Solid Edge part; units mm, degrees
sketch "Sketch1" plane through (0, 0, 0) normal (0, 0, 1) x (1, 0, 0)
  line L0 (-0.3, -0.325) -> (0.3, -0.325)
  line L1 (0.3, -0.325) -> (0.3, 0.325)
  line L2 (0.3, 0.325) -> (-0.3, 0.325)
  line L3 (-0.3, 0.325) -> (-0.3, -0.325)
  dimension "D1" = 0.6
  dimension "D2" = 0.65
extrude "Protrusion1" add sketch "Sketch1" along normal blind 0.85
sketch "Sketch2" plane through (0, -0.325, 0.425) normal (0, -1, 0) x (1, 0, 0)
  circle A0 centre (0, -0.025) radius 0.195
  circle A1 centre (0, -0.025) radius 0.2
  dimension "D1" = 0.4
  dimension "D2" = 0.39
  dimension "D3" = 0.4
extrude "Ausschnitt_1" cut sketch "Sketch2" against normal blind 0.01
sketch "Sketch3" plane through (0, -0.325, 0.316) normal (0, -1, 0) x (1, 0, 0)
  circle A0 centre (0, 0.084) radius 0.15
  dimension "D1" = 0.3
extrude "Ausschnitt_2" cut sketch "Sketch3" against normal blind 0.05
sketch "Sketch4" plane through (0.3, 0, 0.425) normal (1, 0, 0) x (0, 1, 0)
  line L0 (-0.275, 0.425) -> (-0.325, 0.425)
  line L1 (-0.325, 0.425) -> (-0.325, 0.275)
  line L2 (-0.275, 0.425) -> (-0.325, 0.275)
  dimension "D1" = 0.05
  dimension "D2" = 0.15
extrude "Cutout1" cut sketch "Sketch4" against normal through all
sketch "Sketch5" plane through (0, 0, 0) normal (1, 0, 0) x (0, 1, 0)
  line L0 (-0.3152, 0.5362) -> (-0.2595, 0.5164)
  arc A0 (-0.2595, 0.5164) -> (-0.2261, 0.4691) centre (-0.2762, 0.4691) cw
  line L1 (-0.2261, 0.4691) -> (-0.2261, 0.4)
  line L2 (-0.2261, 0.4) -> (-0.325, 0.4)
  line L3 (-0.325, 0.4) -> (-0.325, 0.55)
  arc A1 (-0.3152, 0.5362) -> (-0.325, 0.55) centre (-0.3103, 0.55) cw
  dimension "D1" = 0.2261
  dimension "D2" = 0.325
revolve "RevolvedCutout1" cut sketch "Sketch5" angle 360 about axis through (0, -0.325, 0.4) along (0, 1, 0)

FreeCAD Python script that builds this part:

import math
import FreeCAD as App
import Part
import Sketcher
from FreeCAD import Vector
Q = App.Units.Quantity

doc = App.newDocument("Part")
body = doc.addObject("PartDesign::Body", "Body")

# Sketch on XY plane
sketch1 = doc.addObject("Sketcher::SketchObject", "Sketch")
body.addObject(sketch1)
sketch1.AttachmentSupport = (doc.XY_Plane, [""])
sketch1.MapMode = "FlatFace"
sketch1.addGeometry([
    Part.LineSegment(Vector(-0.3, 0.3, 0), Vector(-0.3, -0.3, 0)),
    Part.LineSegment(Vector(-0.3, -0.3, 0), Vector(0.3, -0.3, 0)),
    Part.LineSegment(Vector(0.3, -0.3, 0), Vector(0.3, 0.3, 0)),
    Part.LineSegment(Vector(0.3, 0.3, 0), Vector(-0.3, 0.3, 0)),
], False)
sketch1.addConstraint([
    Sketcher.Constraint("Coincident", 0, 2, 1, 1),
    Sketcher.Constraint("Coincident", 1, 2, 2, 1),
    Sketcher.Constraint("Coincident", 2, 2, 3, 1),
    Sketcher.Constraint("Coincident", 3, 2, 0, 1),
    Sketcher.Constraint("Vertical", 0),
    Sketcher.Constraint("Horizontal", 1),
    Sketcher.Constraint("Vertical", 2),
    Sketcher.Constraint("Horizontal", 3),
    Sketcher.Constraint("Symmetric", 0, 2, 2, 2, -1, 1),
    Sketcher.Constraint("DistanceX", 0, 2, -1, 1, Q("0.3 mm")),
    Sketcher.Constraint("DistanceY", 0, 2, 0, 1, Q("0.65 mm")),
])
pad1 = doc.addObject("PartDesign::Pad", "Pad")
body.addObject(pad1)
pad1.Profile = sketch1
pad1.Length = 0.85

# Sketch on XZ plane
sketch2 = doc.addObject("Sketcher::SketchObject", "Sketch001")
body.addObject(sketch2)
sketch2.AttachmentSupport = (doc.XZ_Plane, [""])
sketch2.MapMode = "FlatFace"
sketch2.AttachmentOffset = App.Placement(Vector(0, 0, 0.325), App.Rotation())
sketch2.addGeometry([
    Part.Circle(Vector(0, 0.4, 0), Vector(0, 0, 1), 0.2),
    Part.Circle(Vector(0, 0.4, 0), Vector(0, 0, 1), 0.2),
], False)
sketch2.addConstraint([
    Sketcher.Constraint("Coincident", 1, 3, 0, 3),
    Sketcher.Constraint("PointOnObject", 0, 3, -2),
    Sketcher.Constraint("Diameter", 0, Q("0.4 mm")),
    Sketcher.Constraint("Diameter", 1, Q("0.39 mm")),
    Sketcher.Constraint("DistanceY", -1, 1, 0, 3, Q("0.4 mm")),
])
pocket1 = doc.addObject("PartDesign::Pocket", "Pocket")
body.addObject(pocket1)
pocket1.Profile = sketch2
pocket1.Length = 0.01

# Sketch on XZ plane
sketch3 = doc.addObject("Sketcher::SketchObject", "Sketch002")
body.addObject(sketch3)
sketch3.AttachmentSupport = (doc.XZ_Plane, [""])
sketch3.MapMode = "FlatFace"
sketch3.AttachmentOffset = App.Placement(Vector(0, 0, 0.325), App.Rotation())
sketch3.addGeometry(Part.Circle(Vector(0, 0.4, 0), Vector(0, 0, 1), 0.15), False)
sketch3.addConstraint([
    Sketcher.Constraint("PointOnObject", 0, 3, -2),
    Sketcher.Constraint("Diameter", 0, Q("0.3 mm")),
    Sketcher.Constraint("DistanceY", -1, 1, 0, 3, Q("0.4 mm")),
])
pocket2 = doc.addObject("PartDesign::Pocket", "Pocket001")
body.addObject(pocket2)
pocket2.Profile = sketch3
pocket2.Length = 0.05

# Sketch on YZ plane
sketch4 = doc.addObject("Sketcher::SketchObject", "Sketch003")
body.addObject(sketch4)
sketch4.AttachmentSupport = (doc.YZ_Plane, [""])
sketch4.MapMode = "FlatFace"
sketch4.AttachmentOffset = App.Placement(Vector(0, 0, 0.3), App.Rotation())
sketch4.addGeometry([
    Part.LineSegment(Vector(-0.33, 0.7, 0), Vector(-0.28, 0.85, 0)),
    Part.LineSegment(Vector(-0.28, 0.85, 0), Vector(-0.33, 0.85, 0)),
    Part.LineSegment(Vector(-0.33, 0.85, 0), Vector(-0.33, 0.7, 0)),
], False)
sketch4.addConstraint([
    Sketcher.Constraint("Coincident", 0, 2, 1, 1),
    Sketcher.Constraint("Coincident", 1, 2, 2, 1),
    Sketcher.Constraint("Coincident", 2, 2, 0, 1),
    Sketcher.Constraint("Horizontal", 1),
    Sketcher.Constraint("Vertical", 2),
    Sketcher.Constraint("DistanceX", 0, 2, -1, 1, Q("0.275 mm")),
    Sketcher.Constraint("DistanceX", 1, 2, -1, 1, Q("0.325 mm")),
    Sketcher.Constraint("DistanceY", 2, 2, 2, 1, Q("0.15 mm")),
    Sketcher.Constraint("DistanceY", -1, 1, 2, 2, Q("0.7 mm")),
])
pocket3 = doc.addObject("PartDesign::Pocket", "Pocket002")
body.addObject(pocket3)
pocket3.Profile = sketch4
pocket3.Type = "ThroughAll"

# Sketch on YZ plane
sketch5 = doc.addObject("Sketcher::SketchObject", "Sketch004")
body.addObject(sketch5)
sketch5.AttachmentSupport = (doc.YZ_Plane, [""])
sketch5.MapMode = "FlatFace"
sketch5.addGeometry([
    Part.LineSegment(Vector(-0.26, 0.516, 0), Vector(-0.315, 0.536, 0)),  # 0
    Part.ArcOfCircle(Part.Circle(Vector(-0.31, 0.55, 0), Vector(0, 0, 1), 0.015), math.radians(180), math.radians(250)),  # 1
    Part.LineSegment(Vector(-0.325, 0.55, 0), Vector(-0.325, 0.4, 0)),  # 2
    Part.LineSegment(Vector(-0.325, 0.4, 0), Vector(-0.226, 0.4, 0)),  # 3
    Part.LineSegment(Vector(-0.226, 0.4, 0), Vector(-0.226, 0.469, 0)),  # 4
    Part.ArcOfCircle(Part.Circle(Vector(-0.276, 0.469, 0), Vector(0, 0, 1), 0.05), math.radians(0), math.radians(71)),  # 5
], False)
sketch5.addGeometry(Part.LineSegment(Vector(-0.325, 0.4, 0), Vector(-0.226, 0.4, 0)), True)  # axis
sketch5.addConstraint([
    Sketcher.Constraint("Tangent", 0, 2, 1, 2),
    Sketcher.Constraint("Tangent", 1, 1, 2, 1),
    Sketcher.Constraint("Coincident", 2, 2, 3, 1),
    Sketcher.Constraint("Coincident", 3, 2, 4, 1),
    Sketcher.Constraint("Tangent", 4, 2, 5, 1),
    Sketcher.Constraint("Coincident", 5, 2, 0, 1),
    Sketcher.Constraint("Vertical", 2),
    Sketcher.Constraint("Horizontal", 3),
    Sketcher.Constraint("Vertical", 4),
    Sketcher.Constraint("Horizontal", 6),
    Sketcher.Constraint("Coincident", 6, 1, 2, 2),
    Sketcher.Constraint("Vertical", 4, 2, 6, 2),
    Sketcher.Constraint("DistanceX", 1, 1, -1, 1, Q("0.325 mm")),
    Sketcher.Constraint("DistanceX", 3, 2, -1, 1, Q("0.226 mm")),
    Sketcher.Constraint("DistanceY", 2, 2, 2, 1, Q("0.15 mm")),
    Sketcher.Constraint("DistanceY", -1, 1, 2, 2, Q("0.4 mm")),
    Sketcher.Constraint("Angle", 0, Q("160.431 deg")),
    Sketcher.Constraint("Radius", 1, Q("0.0146 mm")),
    Sketcher.Constraint("Radius", 5, Q("0.0502 mm")),
    Sketcher.Constraint("Distance", 0, Q("0.059 mm")),
])
groove = doc.addObject("PartDesign::Groove", "Groove")
body.addObject(groove)
groove.Profile = sketch5
groove.ReferenceAxis = (sketch5, ["Axis0"])
groove.Angle = 360

doc.recompute()
